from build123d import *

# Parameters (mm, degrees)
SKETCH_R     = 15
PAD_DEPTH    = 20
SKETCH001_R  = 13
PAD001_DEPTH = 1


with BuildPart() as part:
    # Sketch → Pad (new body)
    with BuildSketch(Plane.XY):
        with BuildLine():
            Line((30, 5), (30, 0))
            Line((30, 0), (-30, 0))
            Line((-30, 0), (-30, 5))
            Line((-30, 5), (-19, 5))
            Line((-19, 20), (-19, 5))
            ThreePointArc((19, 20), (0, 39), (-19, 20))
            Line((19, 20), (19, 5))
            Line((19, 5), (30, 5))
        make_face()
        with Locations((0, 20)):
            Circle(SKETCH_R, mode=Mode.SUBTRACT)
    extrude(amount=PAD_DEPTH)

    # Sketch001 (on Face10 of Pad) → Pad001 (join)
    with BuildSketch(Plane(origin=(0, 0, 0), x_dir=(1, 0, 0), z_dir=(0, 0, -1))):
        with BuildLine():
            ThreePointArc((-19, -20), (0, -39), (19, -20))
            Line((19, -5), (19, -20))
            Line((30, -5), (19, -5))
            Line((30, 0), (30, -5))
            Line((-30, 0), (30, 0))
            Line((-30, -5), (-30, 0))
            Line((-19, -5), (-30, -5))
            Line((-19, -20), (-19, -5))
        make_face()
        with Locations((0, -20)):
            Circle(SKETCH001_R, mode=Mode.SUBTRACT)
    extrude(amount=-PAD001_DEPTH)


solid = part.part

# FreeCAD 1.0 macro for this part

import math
import FreeCAD as App
import Part
import Sketcher

V = App.Vector
Q = App.Units.Quantity

doc = App.newDocument("Part")
params = doc.addObject("Spreadsheet::Sheet", "Params")
for row, (alias, value) in enumerate([
    ("sketch1_diameter", "30 mm"),
    ("sketch1_radius", "19 mm"),
    ("sketch1_width", "11 mm"),
    ("sketch1_height", "5 mm"),
    ("sketch1_height2", "15 mm"),
    ("pad1_length", "20 mm"),
    ("sketch2_diameter", "26 mm"),
    ("sketch2_radius", "19 mm"),
    ("sketch2_width", "11 mm"),
    ("sketch2_height", "15 mm"),
    ("sketch2_height2", "5 mm"),
    ("pad2_length", "1 mm"),
], start=1):
    params.set(f"A{row}", alias)
    params.set(f"B{row}", "=" + value)
    params.setAlias(f"B{row}", alias)

body = doc.addObject("PartDesign::Body", "Body")

# Sketch on XY plane
sketch1 = body.newObject("Sketcher::SketchObject", "Sketch")
sketch1.AttachmentSupport = (doc.getObject("XY_Plane"), [""])
sketch1.MapMode = "FlatFace"
sketch1.addGeometry([
    Part.LineSegment(V(30, 0, 0), V(30, 5, 0)),  # 0
    Part.LineSegment(V(30, 5, 0), V(19, 5, 0)),  # 1
    Part.LineSegment(V(19, 5, 0), V(19, 20, 0)),  # 2
    Part.ArcOfCircle(Part.Circle(V(0, 20, 0), V(0, 0, 1), 19), math.radians(0), math.radians(180)),  # 3
    Part.LineSegment(V(-19, 20, 0), V(-19, 5, 0)),  # 4
    Part.LineSegment(V(-19, 5, 0), V(-30, 5, 0)),  # 5
    Part.LineSegment(V(-30, 5, 0), V(-30, 0, 0)),  # 6
    Part.LineSegment(V(-30, 0, 0), V(30, 0, 0)),  # 7
    Part.Circle(V(0, 20, 0), V(0, 0, 1), 15),  # 8
], False)
sketch1.addConstraint([
    Sketcher.Constraint("Coincident", 0, 2, 1, 1),
    Sketcher.Constraint("Coincident", 1, 2, 2, 1),
    Sketcher.Constraint("Tangent", 2, 2, 3, 1),
    Sketcher.Constraint("Tangent", 3, 2, 4, 1),
    Sketcher.Constraint("Coincident", 4, 2, 5, 1),
    Sketcher.Constraint("Coincident", 5, 2, 6, 1),
    Sketcher.Constraint("Coincident", 6, 2, 7, 1),
    Sketcher.Constraint("Coincident", 7, 2, 0, 1),
    Sketcher.Constraint("Vertical", 0),
    Sketcher.Constraint("Horizontal", 1),
    Sketcher.Constraint("Vertical", 2),
    Sketcher.Constraint("Vertical", 4),
    Sketcher.Constraint("Horizontal", 5),
    Sketcher.Constraint("Vertical", 6),
    Sketcher.Constraint("Horizontal", 7),
    Sketcher.Constraint("Coincident", 8, 3, 3, 3),
    Sketcher.Constraint("Symmetric", 6, 2, 7, 2, -1, 1),
    Sketcher.Constraint("Symmetric", 1, 2, 4, 2, -2),
    Sketcher.Constraint("Diameter", 8, Q("30 mm")),
    Sketcher.Constraint("Radius", 3, Q("19 mm")),
    Sketcher.Constraint("DistanceX", 1, 2, 1, 1, Q("11 mm")),
    Sketcher.Constraint("DistanceY", 0, 1, 0, 2, Q("5 mm")),
    Sketcher.Constraint("DistanceY", 2, 1, 2, 2, Q("15 mm")),
])
sketch1.setExpression("Constraints[18]", "Params.sketch1_diameter")
sketch1.setExpression("Constraints[19]", "Params.sketch1_radius")
sketch1.setExpression("Constraints[20]", "Params.sketch1_width")
sketch1.setExpression("Constraints[21]", "Params.sketch1_height")
sketch1.setExpression("Constraints[22]", "Params.sketch1_height2")
pad1 = body.newObject("PartDesign::Pad", "Pad")
pad1.Profile = sketch1
pad1.setExpression("Length", "Params.pad1_length")

# Sketch on XY plane
sketch2 = body.newObject("Sketcher::SketchObject", "Sketch001")
sketch2.AttachmentSupport = (doc.getObject("XY_Plane"), [""])
sketch2.MapMode = "FlatFace"
sketch2.addGeometry([
    Part.ArcOfCircle(Part.Circle(V(0, 20, 0), V(0, 0, 1), 19), math.radians(0), math.radians(180)),  # 0
    Part.LineSegment(V(19, 20, 0), V(19, 5, 0)),  # 1
    Part.LineSegment(V(19, 5, 0), V(30, 5, 0)),  # 2
    Part.LineSegment(V(30, 5, 0), V(30, 0, 0)),  # 3
    Part.LineSegment(V(30, 0, 0), V(-30, 0, 0)),  # 4
    Part.LineSegment(V(-30, 0, 0), V(-30, 5, 0)),  # 5
    Part.LineSegment(V(-30, 5, 0), V(-19, 5, 0)),  # 6
    Part.LineSegment(V(-19, 5, 0), V(-19, 20, 0)),  # 7
    Part.Circle(V(0, 20, 0), V(0, 0, 1), 13),  # 8
], False)
sketch2.addConstraint([
    Sketcher.Constraint("Tangent", 0, 1, 1, 1),
    Sketcher.Constraint("Coincident", 1, 2, 2, 1),
    Sketcher.Constraint("Coincident", 2, 2, 3, 1),
    Sketcher.Constraint("Coincident", 3, 2, 4, 1),
    Sketcher.Constraint("Coincident", 4, 2, 5, 1),
    Sketcher.Constraint("Coincident", 5, 2, 6, 1),
    Sketcher.Constraint("Coincident", 6, 2, 7, 1),
    Sketcher.Constraint("Tangent", 7, 2, 0, 2),
    Sketcher.Constraint("Vertical", 1),
    Sketcher.Constraint("Horizontal", 2),
    Sketcher.Constraint("Vertical", 3),
    Sketcher.Constraint("Horizontal", 4),
    Sketcher.Constraint("Vertical", 5),
    Sketcher.Constraint("Horizontal", 6),
    Sketcher.Constraint("Vertical", 7),
    Sketcher.Constraint("Coincident", 8, 3, 0, 3),
    Sketcher.Constraint("Symmetric", 3, 2, 4, 2, -1, 1),
    Sketcher.Constraint("Symmetric", 1, 2, 6, 2, -2),
    Sketcher.Constraint("Diameter", 8, Q("26 mm")),
    Sketcher.Constraint("Radius", 0, Q("19 mm")),
    Sketcher.Constraint("DistanceX", 2, 1, 2, 2, Q("11 mm")),
    Sketcher.Constraint("DistanceY", 1, 2, 1, 1, Q("15 mm")),
    Sketcher.Constraint("DistanceY", 3, 2, 3, 1, Q("5 mm")),
])
sketch2.setExpression("Constraints[18]", "Params.sketch2_diameter")
sketch2.setExpression("Constraints[19]", "Params.sketch2_radius")
sketch2.setExpression("Constraints[20]", "Params.sketch2_width")
sketch2.setExpression("Constraints[21]", "Params.sketch2_height")
sketch2.setExpression("Constraints[22]", "Params.sketch2_height2")
pad2 = body.newObject("PartDesign::Pad", "Pad001")
pad2.Profile = sketch2
pad2.setExpression("Length", "Params.pad2_length")

doc.recompute()
